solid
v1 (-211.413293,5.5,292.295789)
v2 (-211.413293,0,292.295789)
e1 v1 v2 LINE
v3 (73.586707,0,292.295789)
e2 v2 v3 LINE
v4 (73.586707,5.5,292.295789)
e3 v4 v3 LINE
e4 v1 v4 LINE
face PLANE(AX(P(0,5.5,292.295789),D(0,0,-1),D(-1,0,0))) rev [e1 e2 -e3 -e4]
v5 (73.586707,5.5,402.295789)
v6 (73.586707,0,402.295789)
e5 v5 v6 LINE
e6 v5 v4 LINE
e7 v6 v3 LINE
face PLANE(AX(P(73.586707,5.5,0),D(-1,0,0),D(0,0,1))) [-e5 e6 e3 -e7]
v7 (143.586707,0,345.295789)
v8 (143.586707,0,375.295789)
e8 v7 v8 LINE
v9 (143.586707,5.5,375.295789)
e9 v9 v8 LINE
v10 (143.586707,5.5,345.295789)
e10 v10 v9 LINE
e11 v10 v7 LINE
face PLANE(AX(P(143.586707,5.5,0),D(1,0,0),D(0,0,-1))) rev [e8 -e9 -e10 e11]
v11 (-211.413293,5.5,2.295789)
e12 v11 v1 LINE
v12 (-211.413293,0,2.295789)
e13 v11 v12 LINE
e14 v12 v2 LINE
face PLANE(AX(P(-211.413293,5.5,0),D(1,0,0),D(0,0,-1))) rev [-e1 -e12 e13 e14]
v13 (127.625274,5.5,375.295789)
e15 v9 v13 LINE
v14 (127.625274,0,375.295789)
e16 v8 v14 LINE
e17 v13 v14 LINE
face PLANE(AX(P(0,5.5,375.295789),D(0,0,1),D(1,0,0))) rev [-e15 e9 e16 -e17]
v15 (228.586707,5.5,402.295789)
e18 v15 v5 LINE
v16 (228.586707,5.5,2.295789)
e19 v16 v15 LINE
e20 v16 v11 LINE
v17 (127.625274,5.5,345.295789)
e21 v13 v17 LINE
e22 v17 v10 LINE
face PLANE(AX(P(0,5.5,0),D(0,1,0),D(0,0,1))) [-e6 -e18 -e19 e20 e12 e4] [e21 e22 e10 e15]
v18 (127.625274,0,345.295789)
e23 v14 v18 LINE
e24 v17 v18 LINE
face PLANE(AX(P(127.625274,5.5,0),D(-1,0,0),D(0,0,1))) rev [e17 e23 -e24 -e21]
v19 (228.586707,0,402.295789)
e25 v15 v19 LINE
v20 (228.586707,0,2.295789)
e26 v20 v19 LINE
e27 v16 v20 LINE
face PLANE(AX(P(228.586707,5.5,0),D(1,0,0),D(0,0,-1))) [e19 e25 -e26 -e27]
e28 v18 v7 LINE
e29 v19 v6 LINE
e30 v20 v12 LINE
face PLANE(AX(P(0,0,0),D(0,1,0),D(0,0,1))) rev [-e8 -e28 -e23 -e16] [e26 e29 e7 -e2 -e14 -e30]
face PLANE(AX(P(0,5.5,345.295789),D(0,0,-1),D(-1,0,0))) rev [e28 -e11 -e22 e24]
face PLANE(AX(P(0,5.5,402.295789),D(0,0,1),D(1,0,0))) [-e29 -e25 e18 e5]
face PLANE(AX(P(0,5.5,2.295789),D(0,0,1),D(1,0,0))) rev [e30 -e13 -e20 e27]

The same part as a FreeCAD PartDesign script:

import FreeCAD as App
import Part
import Sketcher

doc = App.newDocument("Part")
body = doc.addObject("PartDesign::Body", "Body")

sketch1 = body.newObject("Sketcher::SketchObject", "Sketch")
sketch1.AttachmentSupport = (doc.getObject("XZ_Plane"), [""])
sketch1.MapMode = "FlatFace"
sketch1.addGeometry([
    Part.LineSegment(App.Vector(74, 292, 0), App.Vector(74, 402, 0)),
    Part.LineSegment(App.Vector(74, 402, 0), App.Vector(229, 402, 0)),
    Part.LineSegment(App.Vector(229, 402, 0), App.Vector(229, 2, 0)),
    Part.LineSegment(App.Vector(229, 2, 0), App.Vector(-211, 2, 0)),
    Part.LineSegment(App.Vector(-211, 2, 0), App.Vector(-211, 292, 0)),
    Part.LineSegment(App.Vector(-211, 292, 0), App.Vector(74, 292, 0)),
    Part.LineSegment(App.Vector(144, 345, 0), App.Vector(144, 375, 0)),
    Part.LineSegment(App.Vector(144, 375, 0), App.Vector(128, 375, 0)),
    Part.LineSegment(App.Vector(128, 375, 0), App.Vector(128, 345, 0)),
    Part.LineSegment(App.Vector(128, 345, 0), App.Vector(144, 345, 0)),
], False)
sketch1.addConstraint([
    Sketcher.Constraint("Coincident", 0, 2, 1, 1),
    Sketcher.Constraint("Coincident", 1, 2, 2, 1),
    Sketcher.Constraint("Coincident", 2, 2, 3, 1),
    Sketcher.Constraint("Coincident", 3, 2, 4, 1),
    Sketcher.Constraint("Coincident", 4, 2, 5, 1),
    Sketcher.Constraint("Coincident", 5, 2, 0, 1),
    Sketcher.Constraint("Coincident", 6, 2, 7, 1),
    Sketcher.Constraint("Coincident", 7, 2, 8, 1),
    Sketcher.Constraint("Coincident", 8, 2, 9, 1),
    Sketcher.Constraint("Coincident", 9, 2, 6, 1),
    Sketcher.Constraint("Vertical", 0),
    Sketcher.Constraint("Horizontal", 1),
    Sketcher.Constraint("Vertical", 2),
    Sketcher.Constraint("Horizontal", 3),
    Sketcher.Constraint("Vertical", 4),
    Sketcher.Constraint("Horizontal", 5),
    Sketcher.Constraint("Vertical", 6),
    Sketcher.Constraint("Horizontal", 7),
    Sketcher.Constraint("Vertical", 8),
    Sketcher.Constraint("Horizontal", 9),
    Sketcher.Constraint("DistanceX", 1, 1, 1, 2, 155.0),
    Sketcher.Constraint("DistanceX", 3, 2, 3, 1, 440.0),
    Sketcher.Constraint("DistanceY", 0, 1, 0, 2, 110.0),
    Sketcher.Constraint("DistanceY", 2, 2, 2, 1, 400.0),
    Sketcher.Constraint("DistanceY", 6, 1, 6, 2, 30.0),
    Sketcher.Constraint("DistanceX", 0, 2, 6, 2, 70.0),
    Sketcher.Constraint("DistanceY", 6, 2, 0, 2, 27.0),
    Sketcher.Constraint("DistanceX", 7, 2, 7, 1, 15.961433),
    Sketcher.Constraint("DistanceY", -1, 1, 0, 2, 402.295789),
    Sketcher.Constraint("DistanceX", -1, 1, 0, 2, 73.586707),
])
pad1 = body.newObject("PartDesign::Pad", "Pad")
pad1.Profile = sketch1
pad1.Length = 5.5
pad1.Reversed = True

doc.recompute()
